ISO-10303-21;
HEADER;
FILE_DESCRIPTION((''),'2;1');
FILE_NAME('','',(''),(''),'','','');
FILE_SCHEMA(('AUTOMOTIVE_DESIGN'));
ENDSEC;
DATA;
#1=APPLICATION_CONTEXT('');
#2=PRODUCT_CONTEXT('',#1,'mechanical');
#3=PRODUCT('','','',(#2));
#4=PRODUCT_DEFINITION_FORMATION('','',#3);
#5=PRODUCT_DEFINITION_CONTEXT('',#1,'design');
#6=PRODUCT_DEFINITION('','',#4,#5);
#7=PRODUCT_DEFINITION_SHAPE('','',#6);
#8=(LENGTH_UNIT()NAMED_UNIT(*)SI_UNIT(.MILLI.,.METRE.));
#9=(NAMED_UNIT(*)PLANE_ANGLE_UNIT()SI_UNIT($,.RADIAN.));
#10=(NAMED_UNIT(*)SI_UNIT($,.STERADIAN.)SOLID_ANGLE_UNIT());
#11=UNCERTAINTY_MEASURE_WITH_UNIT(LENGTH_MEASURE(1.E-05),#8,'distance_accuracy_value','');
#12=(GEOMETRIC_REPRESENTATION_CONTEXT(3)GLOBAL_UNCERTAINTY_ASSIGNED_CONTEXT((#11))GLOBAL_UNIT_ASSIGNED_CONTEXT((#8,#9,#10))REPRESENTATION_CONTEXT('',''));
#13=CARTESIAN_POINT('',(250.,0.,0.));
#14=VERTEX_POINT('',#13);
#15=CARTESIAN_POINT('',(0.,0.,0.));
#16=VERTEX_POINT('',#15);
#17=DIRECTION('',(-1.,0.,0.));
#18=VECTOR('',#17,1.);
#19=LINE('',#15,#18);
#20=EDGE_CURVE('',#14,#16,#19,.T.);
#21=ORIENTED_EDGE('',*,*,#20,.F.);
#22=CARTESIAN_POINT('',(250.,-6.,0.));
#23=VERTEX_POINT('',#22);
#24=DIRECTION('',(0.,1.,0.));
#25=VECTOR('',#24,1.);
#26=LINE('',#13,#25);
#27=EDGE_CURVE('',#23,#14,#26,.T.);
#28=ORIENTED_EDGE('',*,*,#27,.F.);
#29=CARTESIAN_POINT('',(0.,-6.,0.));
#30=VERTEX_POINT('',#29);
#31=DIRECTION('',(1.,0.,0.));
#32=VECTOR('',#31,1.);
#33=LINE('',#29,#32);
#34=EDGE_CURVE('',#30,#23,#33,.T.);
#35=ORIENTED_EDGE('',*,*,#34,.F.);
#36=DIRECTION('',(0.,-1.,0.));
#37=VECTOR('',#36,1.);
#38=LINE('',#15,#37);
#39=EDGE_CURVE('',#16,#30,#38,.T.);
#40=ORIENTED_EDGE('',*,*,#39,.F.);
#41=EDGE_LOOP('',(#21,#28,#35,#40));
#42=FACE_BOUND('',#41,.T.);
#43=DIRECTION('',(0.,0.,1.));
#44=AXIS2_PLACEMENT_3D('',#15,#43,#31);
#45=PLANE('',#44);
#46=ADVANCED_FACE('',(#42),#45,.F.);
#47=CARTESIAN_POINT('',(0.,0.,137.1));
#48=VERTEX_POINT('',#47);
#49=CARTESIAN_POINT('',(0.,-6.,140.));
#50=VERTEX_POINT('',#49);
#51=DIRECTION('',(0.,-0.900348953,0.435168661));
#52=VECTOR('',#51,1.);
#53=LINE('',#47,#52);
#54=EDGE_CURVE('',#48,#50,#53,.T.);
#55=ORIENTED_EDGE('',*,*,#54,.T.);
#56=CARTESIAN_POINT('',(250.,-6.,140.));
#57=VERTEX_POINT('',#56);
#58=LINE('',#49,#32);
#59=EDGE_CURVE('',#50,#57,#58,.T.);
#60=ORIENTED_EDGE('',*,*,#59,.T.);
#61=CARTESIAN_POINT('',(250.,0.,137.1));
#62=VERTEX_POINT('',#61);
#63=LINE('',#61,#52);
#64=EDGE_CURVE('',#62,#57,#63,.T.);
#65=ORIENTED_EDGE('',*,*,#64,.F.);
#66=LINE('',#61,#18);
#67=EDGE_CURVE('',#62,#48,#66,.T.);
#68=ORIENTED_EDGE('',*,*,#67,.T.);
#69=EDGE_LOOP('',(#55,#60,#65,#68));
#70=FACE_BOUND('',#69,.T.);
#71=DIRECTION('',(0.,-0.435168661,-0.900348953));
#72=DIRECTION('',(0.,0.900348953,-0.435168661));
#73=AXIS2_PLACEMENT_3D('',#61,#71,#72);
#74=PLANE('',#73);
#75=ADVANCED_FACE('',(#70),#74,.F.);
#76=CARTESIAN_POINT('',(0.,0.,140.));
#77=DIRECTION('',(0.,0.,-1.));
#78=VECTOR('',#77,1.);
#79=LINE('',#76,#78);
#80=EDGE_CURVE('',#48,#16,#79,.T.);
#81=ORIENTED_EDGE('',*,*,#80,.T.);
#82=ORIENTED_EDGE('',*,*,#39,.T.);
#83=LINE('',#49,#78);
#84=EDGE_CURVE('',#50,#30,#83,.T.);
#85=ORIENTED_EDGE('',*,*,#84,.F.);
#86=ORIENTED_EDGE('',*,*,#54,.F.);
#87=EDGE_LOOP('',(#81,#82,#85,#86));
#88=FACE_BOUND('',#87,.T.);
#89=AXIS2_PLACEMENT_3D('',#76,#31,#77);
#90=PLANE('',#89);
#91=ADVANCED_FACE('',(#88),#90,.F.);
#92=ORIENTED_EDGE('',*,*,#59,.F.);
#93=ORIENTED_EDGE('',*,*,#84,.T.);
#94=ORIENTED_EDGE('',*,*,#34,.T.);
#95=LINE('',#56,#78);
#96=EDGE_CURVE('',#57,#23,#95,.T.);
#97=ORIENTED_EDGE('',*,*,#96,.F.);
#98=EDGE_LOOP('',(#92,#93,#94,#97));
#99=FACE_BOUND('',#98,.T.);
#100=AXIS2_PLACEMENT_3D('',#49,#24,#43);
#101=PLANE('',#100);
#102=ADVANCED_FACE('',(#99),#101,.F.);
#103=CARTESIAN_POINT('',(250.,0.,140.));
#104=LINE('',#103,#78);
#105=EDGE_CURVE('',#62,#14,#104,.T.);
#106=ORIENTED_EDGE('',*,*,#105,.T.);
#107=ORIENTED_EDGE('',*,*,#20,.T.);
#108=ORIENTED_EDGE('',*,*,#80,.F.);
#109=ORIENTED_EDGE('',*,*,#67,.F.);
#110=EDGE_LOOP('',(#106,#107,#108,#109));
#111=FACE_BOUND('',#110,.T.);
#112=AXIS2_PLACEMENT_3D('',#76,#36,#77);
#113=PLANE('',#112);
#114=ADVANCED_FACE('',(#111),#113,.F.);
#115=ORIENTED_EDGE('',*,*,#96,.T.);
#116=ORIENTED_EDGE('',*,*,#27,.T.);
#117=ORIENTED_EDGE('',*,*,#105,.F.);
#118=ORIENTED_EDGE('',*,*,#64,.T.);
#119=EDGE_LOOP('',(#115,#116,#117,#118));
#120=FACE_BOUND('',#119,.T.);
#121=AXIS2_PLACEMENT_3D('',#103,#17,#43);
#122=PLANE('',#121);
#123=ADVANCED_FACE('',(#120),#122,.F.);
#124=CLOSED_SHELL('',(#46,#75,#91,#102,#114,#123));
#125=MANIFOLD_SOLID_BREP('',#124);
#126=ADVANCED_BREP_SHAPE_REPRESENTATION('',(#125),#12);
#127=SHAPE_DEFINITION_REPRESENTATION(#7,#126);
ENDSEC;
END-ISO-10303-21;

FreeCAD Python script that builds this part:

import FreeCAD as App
import Part
import Sketcher

V = App.Vector


def add_polygon(sketch, points):
    """Adds a closed chain of lines whose ends are joined by coincident constraints."""
    first, n = sketch.GeometryCount, len(points)
    for a, b in zip(points, points[1:] + points[:1]):
        sketch.addGeometry(Part.LineSegment(App.Vector(*a, 0), App.Vector(*b, 0)), False)
    for i in range(n):
        sketch.addConstraint(Sketcher.Constraint("Coincident", first + i, 2, first + (i + 1) % n, 1))

doc = App.newDocument("Part")
body = doc.addObject("PartDesign::Body", "Body")

sketch1 = body.newObject("Sketcher::SketchObject", "Sketch")
sketch1.AttachmentSupport = (doc.getObject("XY_Plane"), [""])
sketch1.MapMode = "FlatFace"
add_polygon(sketch1, [(0, 0), (0, -6), (250, -6), (250, 0)])
sketch1.addConstraint(Sketcher.Constraint("Vertical", 0))
sketch1.addConstraint(Sketcher.Constraint("Horizontal", 1))
sketch1.addConstraint(Sketcher.Constraint("Vertical", 2))
sketch1.addConstraint(Sketcher.Constraint("Horizontal", 3))
sketch1.addConstraint(Sketcher.Constraint("Coincident", 3, 2, -1, 1))
sketch1.addConstraint(Sketcher.Constraint("DistanceX", 1, 1, 1, 2, 250.0))
sketch1.addConstraint(Sketcher.Constraint("DistanceY", 0, 2, 0, 1, 6.0))
pad1 = body.newObject("PartDesign::Pad", "Pad")
pad1.Profile = sketch1
pad1.Length = 140

sketch2 = body.newObject("Sketcher::SketchObject", "Sketch001")
sketch2.AttachmentSupport = (doc.getObject("YZ_Plane"), [""])
sketch2.MapMode = "FlatFace"
add_polygon(sketch2, [(0, 137.1), (-6, 140), (0, 140)])
sketch2.addConstraint(Sketcher.Constraint("Horizontal", 1))
sketch2.addConstraint(Sketcher.Constraint("Vertical", 2))
sketch2.addConstraint(Sketcher.Constraint("PointOnObject", 1, 2, -2))
sketch2.addConstraint(Sketcher.Constraint("DistanceX", 1, 1, 1, 2, 6.0))
sketch2.addConstraint(Sketcher.Constraint("DistanceY", 2, 2, 2, 1, 2.9))
sketch2.addConstraint(Sketcher.Constraint("DistanceY", -1, 1, 0, 2, 140.0))
pocket1 = body.newObject("PartDesign::Pocket", "Pocket")
pocket1.Profile = sketch2
pocket1.Type = "ThroughAll"
pocket1.Reversed = True

doc.recompute()
